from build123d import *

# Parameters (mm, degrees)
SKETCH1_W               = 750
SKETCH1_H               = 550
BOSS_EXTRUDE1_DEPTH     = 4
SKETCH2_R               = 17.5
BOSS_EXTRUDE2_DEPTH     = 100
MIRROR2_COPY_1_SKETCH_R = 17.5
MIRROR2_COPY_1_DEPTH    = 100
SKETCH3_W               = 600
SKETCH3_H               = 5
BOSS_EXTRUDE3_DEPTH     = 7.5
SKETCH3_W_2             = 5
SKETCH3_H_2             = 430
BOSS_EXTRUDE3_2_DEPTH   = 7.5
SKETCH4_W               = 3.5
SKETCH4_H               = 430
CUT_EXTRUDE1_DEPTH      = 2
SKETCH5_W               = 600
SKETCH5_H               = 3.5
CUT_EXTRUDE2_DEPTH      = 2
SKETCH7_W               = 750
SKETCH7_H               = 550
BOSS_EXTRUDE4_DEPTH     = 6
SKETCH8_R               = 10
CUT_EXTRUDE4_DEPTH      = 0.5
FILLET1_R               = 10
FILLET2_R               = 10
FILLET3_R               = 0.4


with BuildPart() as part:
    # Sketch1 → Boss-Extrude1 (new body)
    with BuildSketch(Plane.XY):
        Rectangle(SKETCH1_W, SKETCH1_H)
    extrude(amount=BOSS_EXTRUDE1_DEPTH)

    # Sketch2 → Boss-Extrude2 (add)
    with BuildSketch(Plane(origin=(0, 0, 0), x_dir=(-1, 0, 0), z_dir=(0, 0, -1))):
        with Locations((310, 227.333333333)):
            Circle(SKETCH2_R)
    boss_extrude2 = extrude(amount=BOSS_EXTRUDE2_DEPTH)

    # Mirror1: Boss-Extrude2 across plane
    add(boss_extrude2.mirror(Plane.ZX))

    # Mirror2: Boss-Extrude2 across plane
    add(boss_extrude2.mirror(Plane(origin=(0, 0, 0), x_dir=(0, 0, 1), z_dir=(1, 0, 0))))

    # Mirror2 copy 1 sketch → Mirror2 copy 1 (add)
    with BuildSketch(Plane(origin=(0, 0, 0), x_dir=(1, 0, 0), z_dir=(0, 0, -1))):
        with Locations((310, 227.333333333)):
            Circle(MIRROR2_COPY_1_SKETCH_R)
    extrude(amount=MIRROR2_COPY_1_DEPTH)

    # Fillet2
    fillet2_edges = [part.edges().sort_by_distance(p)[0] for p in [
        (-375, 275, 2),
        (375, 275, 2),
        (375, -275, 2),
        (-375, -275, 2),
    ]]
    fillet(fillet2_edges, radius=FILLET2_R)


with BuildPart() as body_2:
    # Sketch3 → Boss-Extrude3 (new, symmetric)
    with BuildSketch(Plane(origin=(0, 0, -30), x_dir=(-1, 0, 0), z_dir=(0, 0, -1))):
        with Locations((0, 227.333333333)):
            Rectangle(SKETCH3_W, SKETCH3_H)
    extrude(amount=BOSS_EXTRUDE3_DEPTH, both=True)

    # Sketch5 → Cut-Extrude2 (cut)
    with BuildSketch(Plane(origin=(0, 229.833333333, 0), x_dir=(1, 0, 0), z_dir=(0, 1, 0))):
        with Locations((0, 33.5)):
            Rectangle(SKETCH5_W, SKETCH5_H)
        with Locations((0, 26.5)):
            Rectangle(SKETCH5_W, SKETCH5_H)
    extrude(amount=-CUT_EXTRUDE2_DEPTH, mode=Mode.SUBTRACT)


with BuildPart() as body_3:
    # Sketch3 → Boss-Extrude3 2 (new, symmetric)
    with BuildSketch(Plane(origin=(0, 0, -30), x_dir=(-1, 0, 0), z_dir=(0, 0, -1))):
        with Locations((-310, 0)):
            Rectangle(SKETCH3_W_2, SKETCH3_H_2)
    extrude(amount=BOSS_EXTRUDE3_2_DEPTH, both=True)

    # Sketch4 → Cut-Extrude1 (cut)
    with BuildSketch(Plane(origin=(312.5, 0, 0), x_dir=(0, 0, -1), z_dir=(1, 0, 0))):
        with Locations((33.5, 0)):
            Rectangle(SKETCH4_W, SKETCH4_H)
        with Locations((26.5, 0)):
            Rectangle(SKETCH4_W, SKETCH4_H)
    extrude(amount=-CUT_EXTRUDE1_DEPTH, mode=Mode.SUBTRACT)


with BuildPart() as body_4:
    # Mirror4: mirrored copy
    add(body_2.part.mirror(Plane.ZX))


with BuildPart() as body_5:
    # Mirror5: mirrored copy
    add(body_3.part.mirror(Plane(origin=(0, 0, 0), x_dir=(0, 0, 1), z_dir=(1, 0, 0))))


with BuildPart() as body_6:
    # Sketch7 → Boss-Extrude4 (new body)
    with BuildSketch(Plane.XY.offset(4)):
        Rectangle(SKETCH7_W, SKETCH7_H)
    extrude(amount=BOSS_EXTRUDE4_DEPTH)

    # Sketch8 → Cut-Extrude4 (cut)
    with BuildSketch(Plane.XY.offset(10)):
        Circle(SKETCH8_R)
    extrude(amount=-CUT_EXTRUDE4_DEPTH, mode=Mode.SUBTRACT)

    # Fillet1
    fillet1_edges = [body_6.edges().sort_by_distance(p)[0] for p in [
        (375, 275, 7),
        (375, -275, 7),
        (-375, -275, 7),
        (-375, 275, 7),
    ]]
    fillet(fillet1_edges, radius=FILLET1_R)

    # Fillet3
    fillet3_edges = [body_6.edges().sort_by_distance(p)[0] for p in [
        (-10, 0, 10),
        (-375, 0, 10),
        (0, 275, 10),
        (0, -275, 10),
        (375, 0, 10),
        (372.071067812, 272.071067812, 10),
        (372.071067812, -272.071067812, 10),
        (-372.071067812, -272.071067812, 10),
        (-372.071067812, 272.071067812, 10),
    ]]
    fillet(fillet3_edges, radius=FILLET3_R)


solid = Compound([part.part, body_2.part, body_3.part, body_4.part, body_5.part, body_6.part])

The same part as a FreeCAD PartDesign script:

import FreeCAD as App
import Part
import Sketcher

V = App.Vector


def edges_at(feature, points):
    """Names of the edges that pass closest to the given points."""
    edges = feature.Shape.Edges
    near = lambda p: min(range(len(edges)), key=lambda i: edges[i].distToShape(Part.Vertex(*p))[0])
    return sorted({f"Edge{near(p) + 1}" for p in points})


def add_polygon(sketch, points):
    """Adds a closed chain of lines whose ends are joined by coincident constraints."""
    first, n = sketch.GeometryCount, len(points)
    for a, b in zip(points, points[1:] + points[:1]):
        sketch.addGeometry(Part.LineSegment(App.Vector(*a, 0), App.Vector(*b, 0)), False)
    for i in range(n):
        sketch.addConstraint(Sketcher.Constraint("Coincident", first + i, 2, first + (i + 1) % n, 1))

doc = App.newDocument("Part")
body = doc.addObject("PartDesign::Body", "Body")

sketch1 = body.newObject("Sketcher::SketchObject", "Sketch")
sketch1.AttachmentSupport = (doc.getObject("XY_Plane"), [""])
sketch1.MapMode = "FlatFace"
add_polygon(sketch1, [(-375, 275), (-375, -275), (375, -275), (375, 275)])
sketch1.addConstraint([
    Sketcher.Constraint("Vertical", 0),
    Sketcher.Constraint("Horizontal", 1),
    Sketcher.Constraint("Vertical", 2),
    Sketcher.Constraint("Horizontal", 3),
    Sketcher.Constraint("Symmetric", 0, 2, 2, 2, -1, 1),
    Sketcher.Constraint("DistanceX", 1, 1, 1, 2, 750.0),
    Sketcher.Constraint("DistanceY", 0, 2, 0, 1, 550.0),
])
pad1 = body.newObject("PartDesign::Pad", "Pad")
pad1.Profile = sketch1
pad1.Length = 4

sketch2 = body.newObject("Sketcher::SketchObject", "Sketch001")
sketch2.AttachmentSupport = (doc.getObject("XY_Plane"), [""])
sketch2.MapMode = "FlatFace"
sketch2.addGeometry(Part.Circle(V(-310, 227.333333, 0), V(0, 0, 1), 17.5), False)
sketch2.addConstraint([
    Sketcher.Constraint("Diameter", 0, 35.0),
    Sketcher.Constraint("DistanceX", 0, 3, -1, 1, 310.0),
    Sketcher.Constraint("DistanceY", -1, 1, 0, 3, 227.333333),
])
pad2 = body.newObject("PartDesign::Pad", "Pad001")
pad2.Profile = sketch2
pad2.Length = 100
pad2.Reversed = True
doc.recompute()

mirrored = body.newObject("PartDesign::Mirrored", "Mirrored")
mirrored.Originals = [pad2]
mirrored.MirrorPlane = (doc.getObject("XZ_Plane"), [""])
body.Tip = mirrored
doc.recompute()

mirrored2 = body.newObject("PartDesign::Mirrored", "Mirrored001")
mirrored2.Originals = [pad2]
mirrored2.MirrorPlane = (doc.getObject("YZ_Plane"), [""])
body.Tip = mirrored2

sketch3 = body.newObject("Sketcher::SketchObject", "Sketch002")
sketch3.AttachmentSupport = (doc.getObject("XY_Plane"), [""])
sketch3.MapMode = "FlatFace"
sketch3.addGeometry(Part.Circle(V(310, -227.333333, 0), V(0, 0, 1), 17.5), False)
sketch3.addConstraint([
    Sketcher.Constraint("Diameter", 0, 35.0),
    Sketcher.Constraint("DistanceX", -1, 1, 0, 3, 310.0),
    Sketcher.Constraint("DistanceY", 0, 3, -1, 1, 227.333333),
])
pad3 = body.newObject("PartDesign::Pad", "Pad002")
pad3.Profile = sketch3
pad3.Length = 100
pad3.Reversed = True
doc.recompute()

fillet = body.newObject("PartDesign::Fillet", "Fillet")
fillet.Base = (pad3, edges_at(pad3, [
    (-375, 275, 2),
    (375, 275, 2),
    (375, -275, 2),
    (-375, -275, 2),
]))
fillet.Radius = 10
body2 = doc.addObject("PartDesign::Body", "Body001")

sketch4 = body2.newObject("Sketcher::SketchObject", "Sketch003")
sketch4.AttachmentSupport = (doc.getObject("XY_Plane001"), [""])
sketch4.MapMode = "FlatFace"
sketch4.AttachmentOffset = App.Placement(V(0, 0, -30), App.Rotation())
add_polygon(sketch4, [(300, 229.833333), (300, 224.833333), (-300, 224.833333), (-300, 229.833333)])
sketch4.addConstraint([
    Sketcher.Constraint("Vertical", 0),
    Sketcher.Constraint("Horizontal", 1),
    Sketcher.Constraint("Vertical", 2),
    Sketcher.Constraint("Horizontal", 3),
    Sketcher.Constraint("DistanceX", 1, 2, 1, 1, 600.0),
    Sketcher.Constraint("DistanceY", 0, 2, 0, 1, 5.0),
    Sketcher.Constraint("DistanceX", -1, 1, 0, 2, 300.0),
    Sketcher.Constraint("DistanceY", -1, 1, 0, 2, 224.833333),
])
pad4 = body2.newObject("PartDesign::Pad", "Pad003")
pad4.Profile = sketch4
pad4.Length = 15
pad4.Midplane = True

sketch5 = body2.newObject("Sketcher::SketchObject", "Sketch004")
sketch5.AttachmentSupport = (doc.getObject("XZ_Plane001"), [""])
sketch5.MapMode = "FlatFace"
sketch5.AttachmentOffset = App.Placement(V(0, 0, -229.833333), App.Rotation())
add_polygon(sketch5, [(-300, -35.25), (-300, -31.75), (300, -31.75), (300, -35.25)])
add_polygon(sketch5, [(-300, -28.25), (-300, -24.75), (300, -24.75), (300, -28.25)])
sketch5.addConstraint([
    Sketcher.Constraint("Vertical", 0),
    Sketcher.Constraint("Horizontal", 1),
    Sketcher.Constraint("Vertical", 2),
    Sketcher.Constraint("Horizontal", 3),
    Sketcher.Constraint("Vertical", 4),
    Sketcher.Constraint("Horizontal", 5),
    Sketcher.Constraint("Vertical", 6),
    Sketcher.Constraint("Horizontal", 7),
    Sketcher.Constraint("Vertical", 3, 2, 4, 2),
    Sketcher.Constraint("Vertical", 2, 2, 5, 2),
    Sketcher.Constraint("Equal", 2, 4),
    Sketcher.Constraint("DistanceX", 1, 1, 1, 2, 600.0),
    Sketcher.Constraint("DistanceY", 0, 1, 0, 2, 3.5),
    Sketcher.Constraint("DistanceX", 0, 2, -1, 1, 300.0),
    Sketcher.Constraint("DistanceY", 0, 2, 4, 2, 7.0),
    Sketcher.Constraint("DistanceY", 0, 2, -1, 1, 31.75),
])
pocket1 = body2.newObject("PartDesign::Pocket", "Pocket")
pocket1.Profile = sketch5
pocket1.Length = 2
pocket1.Reversed = True
body3 = doc.addObject("PartDesign::Body", "Body002")

sketch6 = body3.newObject("Sketcher::SketchObject", "Sketch005")
sketch6.AttachmentSupport = (doc.getObject("XY_Plane002"), [""])
sketch6.MapMode = "FlatFace"
sketch6.AttachmentOffset = App.Placement(V(0, 0, -30), App.Rotation())
add_polygon(sketch6, [(312.5, 215), (312.5, -215), (307.5, -215), (307.5, 215)])
sketch6.addConstraint([
    Sketcher.Constraint("Vertical", 0),
    Sketcher.Constraint("Horizontal", 1),
    Sketcher.Constraint("Vertical", 2),
    Sketcher.Constraint("Horizontal", 3),
    Sketcher.Constraint("DistanceX", 1, 2, 1, 1, 5.0),
    Sketcher.Constraint("DistanceY", 0, 2, 0, 1, 430.0),
    Sketcher.Constraint("DistanceY", 0, 2, -1, 1, 215.0),
    Sketcher.Constraint("DistanceX", -1, 1, 0, 2, 312.5),
])
pad5 = body3.newObject("PartDesign::Pad", "Pad004")
pad5.Profile = sketch6
pad5.Length = 15
pad5.Midplane = True

sketch7 = body3.newObject("Sketcher::SketchObject", "Sketch006")
sketch7.AttachmentSupport = (doc.getObject("YZ_Plane002"), [""])
sketch7.MapMode = "FlatFace"
sketch7.AttachmentOffset = App.Placement(V(0, 0, 312.5), App.Rotation())
add_polygon(sketch7, [(215, -31.75), (-215, -31.75), (-215, -35.25), (215, -35.25)])
add_polygon(sketch7, [(215, -24.75), (-215, -24.75), (-215, -28.25), (215, -28.25)])
sketch7.addConstraint([
    Sketcher.Constraint("Horizontal", 0),
    Sketcher.Constraint("Vertical", 1),
    Sketcher.Constraint("Horizontal", 2),
    Sketcher.Constraint("Vertical", 3),
    Sketcher.Constraint("Horizontal", 4),
    Sketcher.Constraint("Vertical", 5),
    Sketcher.Constraint("Horizontal", 6),
    Sketcher.Constraint("Vertical", 7),
    Sketcher.Constraint("Vertical", 1, 2, 4, 2),
    Sketcher.Constraint("Vertical", 3, 2, 6, 2),
    Sketcher.Constraint("Equal", 3, 5),
    Sketcher.Constraint("DistanceX", 0, 2, 0, 1, 430.0),
    Sketcher.Constraint("DistanceY", 1, 2, 1, 1, 3.5),
    Sketcher.Constraint("DistanceX", 0, 2, -1, 1, 215.0),
    Sketcher.Constraint("DistanceY", 0, 2, 4, 2, 7.0),
    Sketcher.Constraint("DistanceY", 0, 2, -1, 1, 31.75),
])
pocket2 = body3.newObject("PartDesign::Pocket", "Pocket001")
pocket2.Profile = sketch7
pocket2.Length = 2
body4 = doc.addObject("PartDesign::Body", "Body003")
doc.recompute()

mirroring = doc.addObject("Part::Mirroring", "Mirroring")
mirroring.Source = body2
mirroring.Base = V(0, 0, 0)
mirroring.Normal = V(0, 1, 0)
body4.BaseFeature = mirroring
doc.recompute()
body5 = doc.addObject("PartDesign::Body", "Body004")
doc.recompute()

mirroring2 = doc.addObject("Part::Mirroring", "Mirroring001")
mirroring2.Source = body3
mirroring2.Base = V(0, 0, 0)
mirroring2.Normal = V(1, 0, 0)
body5.BaseFeature = mirroring2
doc.recompute()
body6 = doc.addObject("PartDesign::Body", "Body005")

sketch8 = body6.newObject("Sketcher::SketchObject", "Sketch007")
sketch8.AttachmentSupport = (doc.getObject("XY_Plane005"), [""])
sketch8.MapMode = "FlatFace"
sketch8.AttachmentOffset = App.Placement(V(0, 0, 4), App.Rotation())
add_polygon(sketch8, [(-375, 275), (-375, -275), (375, -275), (375, 275)])
sketch8.addConstraint([
    Sketcher.Constraint("Vertical", 0),
    Sketcher.Constraint("Horizontal", 1),
    Sketcher.Constraint("Vertical", 2),
    Sketcher.Constraint("Horizontal", 3),
    Sketcher.Constraint("Symmetric", 0, 2, 2, 2, -1, 1),
    Sketcher.Constraint("DistanceX", 1, 1, 1, 2, 750.0),
    Sketcher.Constraint("DistanceY", 0, 2, 0, 1, 550.0),
])
pad6 = body6.newObject("PartDesign::Pad", "Pad005")
pad6.Profile = sketch8
pad6.Length = 6

sketch9 = body6.newObject("Sketcher::SketchObject", "Sketch008")
sketch9.AttachmentSupport = (doc.getObject("XY_Plane005"), [""])
sketch9.MapMode = "FlatFace"
sketch9.AttachmentOffset = App.Placement(V(0, 0, 10), App.Rotation())
sketch9.addGeometry(Part.Circle(V(0, 0, 0), V(0, 0, 1), 10), False)
sketch9.addConstraint([
    Sketcher.Constraint("Coincident", 0, 3, -1, 1),
    Sketcher.Constraint("Diameter", 0, 20.0),
])
pocket3 = body6.newObject("PartDesign::Pocket", "Pocket002")
pocket3.Profile = sketch9
pocket3.Length = 0.5
doc.recompute()

fillet2 = body6.newObject("PartDesign::Fillet", "Fillet001")
fillet2.Base = (pocket3, edges_at(pocket3, [
    (375, 275, 7),
    (375, -275, 7),
    (-375, -275, 7),
    (-375, 275, 7),
]))
fillet2.Radius = 10
doc.recompute()

fillet3 = body6.newObject("PartDesign::Fillet", "Fillet002")
fillet3.Base = (fillet2, edges_at(fillet2, [
    (-10, 0, 10),
    (-375, 0, 10),
    (0, 275, 10),
    (0, -275, 10),
    (375, 0, 10),
    (372.071, 272.071, 10),
    (372.071, -272.071, 10),
    (-372.071, -272.071, 10),
    (-372.071, 272.071, 10),
]))
fillet3.Radius = 0.4
mirroring.Visibility = False
mirroring2.Visibility = False

doc.recompute()
